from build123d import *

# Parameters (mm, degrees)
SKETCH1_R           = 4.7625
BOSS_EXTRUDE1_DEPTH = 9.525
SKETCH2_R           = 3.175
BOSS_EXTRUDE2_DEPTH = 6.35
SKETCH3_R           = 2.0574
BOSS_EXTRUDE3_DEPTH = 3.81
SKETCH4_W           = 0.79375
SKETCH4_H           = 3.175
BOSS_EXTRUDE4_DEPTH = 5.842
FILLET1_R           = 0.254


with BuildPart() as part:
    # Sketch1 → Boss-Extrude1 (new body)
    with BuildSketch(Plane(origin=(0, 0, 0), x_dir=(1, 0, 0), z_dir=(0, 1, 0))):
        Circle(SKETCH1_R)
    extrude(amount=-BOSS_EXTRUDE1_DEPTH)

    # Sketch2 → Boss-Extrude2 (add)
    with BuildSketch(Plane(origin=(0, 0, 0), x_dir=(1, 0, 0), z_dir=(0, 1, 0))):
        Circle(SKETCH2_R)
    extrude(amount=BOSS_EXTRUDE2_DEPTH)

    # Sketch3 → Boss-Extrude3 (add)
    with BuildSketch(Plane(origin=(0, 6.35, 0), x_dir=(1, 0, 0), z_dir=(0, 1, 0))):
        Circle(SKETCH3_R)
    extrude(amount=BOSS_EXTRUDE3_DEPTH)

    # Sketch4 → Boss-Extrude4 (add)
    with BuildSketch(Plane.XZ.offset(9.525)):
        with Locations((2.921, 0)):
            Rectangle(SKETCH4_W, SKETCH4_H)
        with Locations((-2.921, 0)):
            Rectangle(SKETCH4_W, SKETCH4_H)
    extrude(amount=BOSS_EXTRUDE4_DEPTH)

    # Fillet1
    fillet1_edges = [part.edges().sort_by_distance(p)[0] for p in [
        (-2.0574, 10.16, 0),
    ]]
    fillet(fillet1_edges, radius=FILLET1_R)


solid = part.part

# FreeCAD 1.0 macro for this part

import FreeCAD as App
import Part
import Sketcher
from FreeCAD import Vector
Q = App.Units.Quantity


def edges_at(feature, points):
    """Names of the edges that pass closest to the given points."""
    edges = feature.Shape.Edges
    near = lambda p: min(range(len(edges)), key=lambda i: edges[i].distToShape(Part.Vertex(*p))[0])
    return sorted({f"Edge{near(p) + 1}" for p in points})

doc = App.newDocument("Part")
body = doc.addObject("PartDesign::Body", "Body")

# Sketch on XZ plane
sketch1 = body.newObject("Sketcher::SketchObject", "Sketch")
sketch1.AttachmentSupport = (doc.getObject("XZ_Plane"), [""])
sketch1.MapMode = "FlatFace"
sketch1.addGeometry(Part.Circle(Vector(0, 0, 0), Vector(0, 0, 1), 4.8), False)
sketch1.addConstraint(Sketcher.Constraint("Coincident", 0, 3, -1, 1))
sketch1.addConstraint(Sketcher.Constraint("Diameter", 0, Q("0.375 in")))
pad1 = body.newObject("PartDesign::Pad", "Pad")
pad1.Profile = sketch1
pad1.Length = Q("0.375 in")

# Sketch on XZ plane
sketch2 = body.newObject("Sketcher::SketchObject", "Sketch001")
sketch2.AttachmentSupport = (doc.getObject("XZ_Plane"), [""])
sketch2.MapMode = "FlatFace"
sketch2.addGeometry(Part.Circle(Vector(0, 0, 0), Vector(0, 0, 1), 3.2), False)
sketch2.addConstraint(Sketcher.Constraint("Coincident", 0, 3, -1, 1))
sketch2.addConstraint(Sketcher.Constraint("Diameter", 0, Q("0.25 in")))
pad2 = body.newObject("PartDesign::Pad", "Pad001")
pad2.Profile = sketch2
pad2.Length = Q("0.25 in")
pad2.Reversed = True

# Sketch on XZ plane
sketch3 = body.newObject("Sketcher::SketchObject", "Sketch002")
sketch3.AttachmentSupport = (doc.getObject("XZ_Plane"), [""])
sketch3.MapMode = "FlatFace"
sketch3.AttachmentOffset = App.Placement(Vector(0, 0, -0.25 * 25.4), App.Rotation())
sketch3.addGeometry(Part.Circle(Vector(0, 0, 0), Vector(0, 0, 1), 2.1), False)
sketch3.addConstraint(Sketcher.Constraint("Coincident", 0, 3, -1, 1))
sketch3.addConstraint(Sketcher.Constraint("Diameter", 0, Q("0.162 in")))
pad3 = body.newObject("PartDesign::Pad", "Pad002")
pad3.Profile = sketch3
pad3.Length = Q("0.15 in")
pad3.Reversed = True

# Sketch on XZ plane
sketch4 = body.newObject("Sketcher::SketchObject", "Sketch003")
sketch4.AttachmentSupport = (doc.getObject("XZ_Plane"), [""])
sketch4.MapMode = "FlatFace"
sketch4.AttachmentOffset = App.Placement(Vector(0, 0, 0.375 * 25.4), App.Rotation())
sketch4.addGeometry(Part.LineSegment(Vector(2.5, 1.6, 0), Vector(2.5, -1.6, 0)), False)
sketch4.addGeometry(Part.LineSegment(Vector(2.5, -1.6, 0), Vector(3.3, -1.6, 0)), False)
sketch4.addGeometry(Part.LineSegment(Vector(3.3, -1.6, 0), Vector(3.3, 1.6, 0)), False)
sketch4.addGeometry(Part.LineSegment(Vector(3.3, 1.6, 0), Vector(2.5, 1.6, 0)), False)
sketch4.addGeometry(Part.LineSegment(Vector(-3.3, 1.6, 0), Vector(-3.3, -1.6, 0)), False)
sketch4.addGeometry(Part.LineSegment(Vector(-3.3, -1.6, 0), Vector(-2.5, -1.6, 0)), False)
sketch4.addGeometry(Part.LineSegment(Vector(-2.5, -1.6, 0), Vector(-2.5, 1.6, 0)), False)
sketch4.addGeometry(Part.LineSegment(Vector(-2.5, 1.6, 0), Vector(-3.3, 1.6, 0)), False)
sketch4.addConstraint(Sketcher.Constraint("Coincident", 0, 2, 1, 1))
sketch4.addConstraint(Sketcher.Constraint("Coincident", 1, 2, 2, 1))
sketch4.addConstraint(Sketcher.Constraint("Coincident", 2, 2, 3, 1))
sketch4.addConstraint(Sketcher.Constraint("Coincident", 3, 2, 0, 1))
sketch4.addConstraint(Sketcher.Constraint("Coincident", 4, 2, 5, 1))
sketch4.addConstraint(Sketcher.Constraint("Coincident", 5, 2, 6, 1))
sketch4.addConstraint(Sketcher.Constraint("Coincident", 6, 2, 7, 1))
sketch4.addConstraint(Sketcher.Constraint("Coincident", 7, 2, 4, 1))
sketch4.addConstraint(Sketcher.Constraint("Vertical", 0))
sketch4.addConstraint(Sketcher.Constraint("Horizontal", 1))
sketch4.addConstraint(Sketcher.Constraint("Vertical", 2))
sketch4.addConstraint(Sketcher.Constraint("Horizontal", 3))
sketch4.addConstraint(Sketcher.Constraint("Vertical", 4))
sketch4.addConstraint(Sketcher.Constraint("Horizontal", 5))
sketch4.addConstraint(Sketcher.Constraint("Vertical", 6))
sketch4.addConstraint(Sketcher.Constraint("Horizontal", 7))
sketch4.addConstraint(Sketcher.Constraint("Symmetric", 2, 2, 4, 2, -1, 1))
sketch4.addConstraint(Sketcher.Constraint("Symmetric", 0, 2, 6, 2, -1, 1))
sketch4.addConstraint(Sketcher.Constraint("Horizontal", 1, 2, 4, 2))
sketch4.addConstraint(Sketcher.Constraint("DistanceX", 1, 1, 1, 2, Q("0.03125 in")))
sketch4.addConstraint(Sketcher.Constraint("DistanceY", 0, 2, 0, 1, Q("0.125 in")))
sketch4.addConstraint(Sketcher.Constraint("DistanceX", 4, 2, 0, 2, Q("0.23 in")))
pad4 = body.newObject("PartDesign::Pad", "Pad003")
pad4.Profile = sketch4
pad4.Length = Q("0.23 in")
doc.recompute()

fillet = body.newObject("PartDesign::Fillet", "Fillet")
fillet.Base = (pad4, edges_at(pad4, [(-2.057, 10.16, 0)]))
fillet.Radius = Q("0.01 in")

doc.recompute()
